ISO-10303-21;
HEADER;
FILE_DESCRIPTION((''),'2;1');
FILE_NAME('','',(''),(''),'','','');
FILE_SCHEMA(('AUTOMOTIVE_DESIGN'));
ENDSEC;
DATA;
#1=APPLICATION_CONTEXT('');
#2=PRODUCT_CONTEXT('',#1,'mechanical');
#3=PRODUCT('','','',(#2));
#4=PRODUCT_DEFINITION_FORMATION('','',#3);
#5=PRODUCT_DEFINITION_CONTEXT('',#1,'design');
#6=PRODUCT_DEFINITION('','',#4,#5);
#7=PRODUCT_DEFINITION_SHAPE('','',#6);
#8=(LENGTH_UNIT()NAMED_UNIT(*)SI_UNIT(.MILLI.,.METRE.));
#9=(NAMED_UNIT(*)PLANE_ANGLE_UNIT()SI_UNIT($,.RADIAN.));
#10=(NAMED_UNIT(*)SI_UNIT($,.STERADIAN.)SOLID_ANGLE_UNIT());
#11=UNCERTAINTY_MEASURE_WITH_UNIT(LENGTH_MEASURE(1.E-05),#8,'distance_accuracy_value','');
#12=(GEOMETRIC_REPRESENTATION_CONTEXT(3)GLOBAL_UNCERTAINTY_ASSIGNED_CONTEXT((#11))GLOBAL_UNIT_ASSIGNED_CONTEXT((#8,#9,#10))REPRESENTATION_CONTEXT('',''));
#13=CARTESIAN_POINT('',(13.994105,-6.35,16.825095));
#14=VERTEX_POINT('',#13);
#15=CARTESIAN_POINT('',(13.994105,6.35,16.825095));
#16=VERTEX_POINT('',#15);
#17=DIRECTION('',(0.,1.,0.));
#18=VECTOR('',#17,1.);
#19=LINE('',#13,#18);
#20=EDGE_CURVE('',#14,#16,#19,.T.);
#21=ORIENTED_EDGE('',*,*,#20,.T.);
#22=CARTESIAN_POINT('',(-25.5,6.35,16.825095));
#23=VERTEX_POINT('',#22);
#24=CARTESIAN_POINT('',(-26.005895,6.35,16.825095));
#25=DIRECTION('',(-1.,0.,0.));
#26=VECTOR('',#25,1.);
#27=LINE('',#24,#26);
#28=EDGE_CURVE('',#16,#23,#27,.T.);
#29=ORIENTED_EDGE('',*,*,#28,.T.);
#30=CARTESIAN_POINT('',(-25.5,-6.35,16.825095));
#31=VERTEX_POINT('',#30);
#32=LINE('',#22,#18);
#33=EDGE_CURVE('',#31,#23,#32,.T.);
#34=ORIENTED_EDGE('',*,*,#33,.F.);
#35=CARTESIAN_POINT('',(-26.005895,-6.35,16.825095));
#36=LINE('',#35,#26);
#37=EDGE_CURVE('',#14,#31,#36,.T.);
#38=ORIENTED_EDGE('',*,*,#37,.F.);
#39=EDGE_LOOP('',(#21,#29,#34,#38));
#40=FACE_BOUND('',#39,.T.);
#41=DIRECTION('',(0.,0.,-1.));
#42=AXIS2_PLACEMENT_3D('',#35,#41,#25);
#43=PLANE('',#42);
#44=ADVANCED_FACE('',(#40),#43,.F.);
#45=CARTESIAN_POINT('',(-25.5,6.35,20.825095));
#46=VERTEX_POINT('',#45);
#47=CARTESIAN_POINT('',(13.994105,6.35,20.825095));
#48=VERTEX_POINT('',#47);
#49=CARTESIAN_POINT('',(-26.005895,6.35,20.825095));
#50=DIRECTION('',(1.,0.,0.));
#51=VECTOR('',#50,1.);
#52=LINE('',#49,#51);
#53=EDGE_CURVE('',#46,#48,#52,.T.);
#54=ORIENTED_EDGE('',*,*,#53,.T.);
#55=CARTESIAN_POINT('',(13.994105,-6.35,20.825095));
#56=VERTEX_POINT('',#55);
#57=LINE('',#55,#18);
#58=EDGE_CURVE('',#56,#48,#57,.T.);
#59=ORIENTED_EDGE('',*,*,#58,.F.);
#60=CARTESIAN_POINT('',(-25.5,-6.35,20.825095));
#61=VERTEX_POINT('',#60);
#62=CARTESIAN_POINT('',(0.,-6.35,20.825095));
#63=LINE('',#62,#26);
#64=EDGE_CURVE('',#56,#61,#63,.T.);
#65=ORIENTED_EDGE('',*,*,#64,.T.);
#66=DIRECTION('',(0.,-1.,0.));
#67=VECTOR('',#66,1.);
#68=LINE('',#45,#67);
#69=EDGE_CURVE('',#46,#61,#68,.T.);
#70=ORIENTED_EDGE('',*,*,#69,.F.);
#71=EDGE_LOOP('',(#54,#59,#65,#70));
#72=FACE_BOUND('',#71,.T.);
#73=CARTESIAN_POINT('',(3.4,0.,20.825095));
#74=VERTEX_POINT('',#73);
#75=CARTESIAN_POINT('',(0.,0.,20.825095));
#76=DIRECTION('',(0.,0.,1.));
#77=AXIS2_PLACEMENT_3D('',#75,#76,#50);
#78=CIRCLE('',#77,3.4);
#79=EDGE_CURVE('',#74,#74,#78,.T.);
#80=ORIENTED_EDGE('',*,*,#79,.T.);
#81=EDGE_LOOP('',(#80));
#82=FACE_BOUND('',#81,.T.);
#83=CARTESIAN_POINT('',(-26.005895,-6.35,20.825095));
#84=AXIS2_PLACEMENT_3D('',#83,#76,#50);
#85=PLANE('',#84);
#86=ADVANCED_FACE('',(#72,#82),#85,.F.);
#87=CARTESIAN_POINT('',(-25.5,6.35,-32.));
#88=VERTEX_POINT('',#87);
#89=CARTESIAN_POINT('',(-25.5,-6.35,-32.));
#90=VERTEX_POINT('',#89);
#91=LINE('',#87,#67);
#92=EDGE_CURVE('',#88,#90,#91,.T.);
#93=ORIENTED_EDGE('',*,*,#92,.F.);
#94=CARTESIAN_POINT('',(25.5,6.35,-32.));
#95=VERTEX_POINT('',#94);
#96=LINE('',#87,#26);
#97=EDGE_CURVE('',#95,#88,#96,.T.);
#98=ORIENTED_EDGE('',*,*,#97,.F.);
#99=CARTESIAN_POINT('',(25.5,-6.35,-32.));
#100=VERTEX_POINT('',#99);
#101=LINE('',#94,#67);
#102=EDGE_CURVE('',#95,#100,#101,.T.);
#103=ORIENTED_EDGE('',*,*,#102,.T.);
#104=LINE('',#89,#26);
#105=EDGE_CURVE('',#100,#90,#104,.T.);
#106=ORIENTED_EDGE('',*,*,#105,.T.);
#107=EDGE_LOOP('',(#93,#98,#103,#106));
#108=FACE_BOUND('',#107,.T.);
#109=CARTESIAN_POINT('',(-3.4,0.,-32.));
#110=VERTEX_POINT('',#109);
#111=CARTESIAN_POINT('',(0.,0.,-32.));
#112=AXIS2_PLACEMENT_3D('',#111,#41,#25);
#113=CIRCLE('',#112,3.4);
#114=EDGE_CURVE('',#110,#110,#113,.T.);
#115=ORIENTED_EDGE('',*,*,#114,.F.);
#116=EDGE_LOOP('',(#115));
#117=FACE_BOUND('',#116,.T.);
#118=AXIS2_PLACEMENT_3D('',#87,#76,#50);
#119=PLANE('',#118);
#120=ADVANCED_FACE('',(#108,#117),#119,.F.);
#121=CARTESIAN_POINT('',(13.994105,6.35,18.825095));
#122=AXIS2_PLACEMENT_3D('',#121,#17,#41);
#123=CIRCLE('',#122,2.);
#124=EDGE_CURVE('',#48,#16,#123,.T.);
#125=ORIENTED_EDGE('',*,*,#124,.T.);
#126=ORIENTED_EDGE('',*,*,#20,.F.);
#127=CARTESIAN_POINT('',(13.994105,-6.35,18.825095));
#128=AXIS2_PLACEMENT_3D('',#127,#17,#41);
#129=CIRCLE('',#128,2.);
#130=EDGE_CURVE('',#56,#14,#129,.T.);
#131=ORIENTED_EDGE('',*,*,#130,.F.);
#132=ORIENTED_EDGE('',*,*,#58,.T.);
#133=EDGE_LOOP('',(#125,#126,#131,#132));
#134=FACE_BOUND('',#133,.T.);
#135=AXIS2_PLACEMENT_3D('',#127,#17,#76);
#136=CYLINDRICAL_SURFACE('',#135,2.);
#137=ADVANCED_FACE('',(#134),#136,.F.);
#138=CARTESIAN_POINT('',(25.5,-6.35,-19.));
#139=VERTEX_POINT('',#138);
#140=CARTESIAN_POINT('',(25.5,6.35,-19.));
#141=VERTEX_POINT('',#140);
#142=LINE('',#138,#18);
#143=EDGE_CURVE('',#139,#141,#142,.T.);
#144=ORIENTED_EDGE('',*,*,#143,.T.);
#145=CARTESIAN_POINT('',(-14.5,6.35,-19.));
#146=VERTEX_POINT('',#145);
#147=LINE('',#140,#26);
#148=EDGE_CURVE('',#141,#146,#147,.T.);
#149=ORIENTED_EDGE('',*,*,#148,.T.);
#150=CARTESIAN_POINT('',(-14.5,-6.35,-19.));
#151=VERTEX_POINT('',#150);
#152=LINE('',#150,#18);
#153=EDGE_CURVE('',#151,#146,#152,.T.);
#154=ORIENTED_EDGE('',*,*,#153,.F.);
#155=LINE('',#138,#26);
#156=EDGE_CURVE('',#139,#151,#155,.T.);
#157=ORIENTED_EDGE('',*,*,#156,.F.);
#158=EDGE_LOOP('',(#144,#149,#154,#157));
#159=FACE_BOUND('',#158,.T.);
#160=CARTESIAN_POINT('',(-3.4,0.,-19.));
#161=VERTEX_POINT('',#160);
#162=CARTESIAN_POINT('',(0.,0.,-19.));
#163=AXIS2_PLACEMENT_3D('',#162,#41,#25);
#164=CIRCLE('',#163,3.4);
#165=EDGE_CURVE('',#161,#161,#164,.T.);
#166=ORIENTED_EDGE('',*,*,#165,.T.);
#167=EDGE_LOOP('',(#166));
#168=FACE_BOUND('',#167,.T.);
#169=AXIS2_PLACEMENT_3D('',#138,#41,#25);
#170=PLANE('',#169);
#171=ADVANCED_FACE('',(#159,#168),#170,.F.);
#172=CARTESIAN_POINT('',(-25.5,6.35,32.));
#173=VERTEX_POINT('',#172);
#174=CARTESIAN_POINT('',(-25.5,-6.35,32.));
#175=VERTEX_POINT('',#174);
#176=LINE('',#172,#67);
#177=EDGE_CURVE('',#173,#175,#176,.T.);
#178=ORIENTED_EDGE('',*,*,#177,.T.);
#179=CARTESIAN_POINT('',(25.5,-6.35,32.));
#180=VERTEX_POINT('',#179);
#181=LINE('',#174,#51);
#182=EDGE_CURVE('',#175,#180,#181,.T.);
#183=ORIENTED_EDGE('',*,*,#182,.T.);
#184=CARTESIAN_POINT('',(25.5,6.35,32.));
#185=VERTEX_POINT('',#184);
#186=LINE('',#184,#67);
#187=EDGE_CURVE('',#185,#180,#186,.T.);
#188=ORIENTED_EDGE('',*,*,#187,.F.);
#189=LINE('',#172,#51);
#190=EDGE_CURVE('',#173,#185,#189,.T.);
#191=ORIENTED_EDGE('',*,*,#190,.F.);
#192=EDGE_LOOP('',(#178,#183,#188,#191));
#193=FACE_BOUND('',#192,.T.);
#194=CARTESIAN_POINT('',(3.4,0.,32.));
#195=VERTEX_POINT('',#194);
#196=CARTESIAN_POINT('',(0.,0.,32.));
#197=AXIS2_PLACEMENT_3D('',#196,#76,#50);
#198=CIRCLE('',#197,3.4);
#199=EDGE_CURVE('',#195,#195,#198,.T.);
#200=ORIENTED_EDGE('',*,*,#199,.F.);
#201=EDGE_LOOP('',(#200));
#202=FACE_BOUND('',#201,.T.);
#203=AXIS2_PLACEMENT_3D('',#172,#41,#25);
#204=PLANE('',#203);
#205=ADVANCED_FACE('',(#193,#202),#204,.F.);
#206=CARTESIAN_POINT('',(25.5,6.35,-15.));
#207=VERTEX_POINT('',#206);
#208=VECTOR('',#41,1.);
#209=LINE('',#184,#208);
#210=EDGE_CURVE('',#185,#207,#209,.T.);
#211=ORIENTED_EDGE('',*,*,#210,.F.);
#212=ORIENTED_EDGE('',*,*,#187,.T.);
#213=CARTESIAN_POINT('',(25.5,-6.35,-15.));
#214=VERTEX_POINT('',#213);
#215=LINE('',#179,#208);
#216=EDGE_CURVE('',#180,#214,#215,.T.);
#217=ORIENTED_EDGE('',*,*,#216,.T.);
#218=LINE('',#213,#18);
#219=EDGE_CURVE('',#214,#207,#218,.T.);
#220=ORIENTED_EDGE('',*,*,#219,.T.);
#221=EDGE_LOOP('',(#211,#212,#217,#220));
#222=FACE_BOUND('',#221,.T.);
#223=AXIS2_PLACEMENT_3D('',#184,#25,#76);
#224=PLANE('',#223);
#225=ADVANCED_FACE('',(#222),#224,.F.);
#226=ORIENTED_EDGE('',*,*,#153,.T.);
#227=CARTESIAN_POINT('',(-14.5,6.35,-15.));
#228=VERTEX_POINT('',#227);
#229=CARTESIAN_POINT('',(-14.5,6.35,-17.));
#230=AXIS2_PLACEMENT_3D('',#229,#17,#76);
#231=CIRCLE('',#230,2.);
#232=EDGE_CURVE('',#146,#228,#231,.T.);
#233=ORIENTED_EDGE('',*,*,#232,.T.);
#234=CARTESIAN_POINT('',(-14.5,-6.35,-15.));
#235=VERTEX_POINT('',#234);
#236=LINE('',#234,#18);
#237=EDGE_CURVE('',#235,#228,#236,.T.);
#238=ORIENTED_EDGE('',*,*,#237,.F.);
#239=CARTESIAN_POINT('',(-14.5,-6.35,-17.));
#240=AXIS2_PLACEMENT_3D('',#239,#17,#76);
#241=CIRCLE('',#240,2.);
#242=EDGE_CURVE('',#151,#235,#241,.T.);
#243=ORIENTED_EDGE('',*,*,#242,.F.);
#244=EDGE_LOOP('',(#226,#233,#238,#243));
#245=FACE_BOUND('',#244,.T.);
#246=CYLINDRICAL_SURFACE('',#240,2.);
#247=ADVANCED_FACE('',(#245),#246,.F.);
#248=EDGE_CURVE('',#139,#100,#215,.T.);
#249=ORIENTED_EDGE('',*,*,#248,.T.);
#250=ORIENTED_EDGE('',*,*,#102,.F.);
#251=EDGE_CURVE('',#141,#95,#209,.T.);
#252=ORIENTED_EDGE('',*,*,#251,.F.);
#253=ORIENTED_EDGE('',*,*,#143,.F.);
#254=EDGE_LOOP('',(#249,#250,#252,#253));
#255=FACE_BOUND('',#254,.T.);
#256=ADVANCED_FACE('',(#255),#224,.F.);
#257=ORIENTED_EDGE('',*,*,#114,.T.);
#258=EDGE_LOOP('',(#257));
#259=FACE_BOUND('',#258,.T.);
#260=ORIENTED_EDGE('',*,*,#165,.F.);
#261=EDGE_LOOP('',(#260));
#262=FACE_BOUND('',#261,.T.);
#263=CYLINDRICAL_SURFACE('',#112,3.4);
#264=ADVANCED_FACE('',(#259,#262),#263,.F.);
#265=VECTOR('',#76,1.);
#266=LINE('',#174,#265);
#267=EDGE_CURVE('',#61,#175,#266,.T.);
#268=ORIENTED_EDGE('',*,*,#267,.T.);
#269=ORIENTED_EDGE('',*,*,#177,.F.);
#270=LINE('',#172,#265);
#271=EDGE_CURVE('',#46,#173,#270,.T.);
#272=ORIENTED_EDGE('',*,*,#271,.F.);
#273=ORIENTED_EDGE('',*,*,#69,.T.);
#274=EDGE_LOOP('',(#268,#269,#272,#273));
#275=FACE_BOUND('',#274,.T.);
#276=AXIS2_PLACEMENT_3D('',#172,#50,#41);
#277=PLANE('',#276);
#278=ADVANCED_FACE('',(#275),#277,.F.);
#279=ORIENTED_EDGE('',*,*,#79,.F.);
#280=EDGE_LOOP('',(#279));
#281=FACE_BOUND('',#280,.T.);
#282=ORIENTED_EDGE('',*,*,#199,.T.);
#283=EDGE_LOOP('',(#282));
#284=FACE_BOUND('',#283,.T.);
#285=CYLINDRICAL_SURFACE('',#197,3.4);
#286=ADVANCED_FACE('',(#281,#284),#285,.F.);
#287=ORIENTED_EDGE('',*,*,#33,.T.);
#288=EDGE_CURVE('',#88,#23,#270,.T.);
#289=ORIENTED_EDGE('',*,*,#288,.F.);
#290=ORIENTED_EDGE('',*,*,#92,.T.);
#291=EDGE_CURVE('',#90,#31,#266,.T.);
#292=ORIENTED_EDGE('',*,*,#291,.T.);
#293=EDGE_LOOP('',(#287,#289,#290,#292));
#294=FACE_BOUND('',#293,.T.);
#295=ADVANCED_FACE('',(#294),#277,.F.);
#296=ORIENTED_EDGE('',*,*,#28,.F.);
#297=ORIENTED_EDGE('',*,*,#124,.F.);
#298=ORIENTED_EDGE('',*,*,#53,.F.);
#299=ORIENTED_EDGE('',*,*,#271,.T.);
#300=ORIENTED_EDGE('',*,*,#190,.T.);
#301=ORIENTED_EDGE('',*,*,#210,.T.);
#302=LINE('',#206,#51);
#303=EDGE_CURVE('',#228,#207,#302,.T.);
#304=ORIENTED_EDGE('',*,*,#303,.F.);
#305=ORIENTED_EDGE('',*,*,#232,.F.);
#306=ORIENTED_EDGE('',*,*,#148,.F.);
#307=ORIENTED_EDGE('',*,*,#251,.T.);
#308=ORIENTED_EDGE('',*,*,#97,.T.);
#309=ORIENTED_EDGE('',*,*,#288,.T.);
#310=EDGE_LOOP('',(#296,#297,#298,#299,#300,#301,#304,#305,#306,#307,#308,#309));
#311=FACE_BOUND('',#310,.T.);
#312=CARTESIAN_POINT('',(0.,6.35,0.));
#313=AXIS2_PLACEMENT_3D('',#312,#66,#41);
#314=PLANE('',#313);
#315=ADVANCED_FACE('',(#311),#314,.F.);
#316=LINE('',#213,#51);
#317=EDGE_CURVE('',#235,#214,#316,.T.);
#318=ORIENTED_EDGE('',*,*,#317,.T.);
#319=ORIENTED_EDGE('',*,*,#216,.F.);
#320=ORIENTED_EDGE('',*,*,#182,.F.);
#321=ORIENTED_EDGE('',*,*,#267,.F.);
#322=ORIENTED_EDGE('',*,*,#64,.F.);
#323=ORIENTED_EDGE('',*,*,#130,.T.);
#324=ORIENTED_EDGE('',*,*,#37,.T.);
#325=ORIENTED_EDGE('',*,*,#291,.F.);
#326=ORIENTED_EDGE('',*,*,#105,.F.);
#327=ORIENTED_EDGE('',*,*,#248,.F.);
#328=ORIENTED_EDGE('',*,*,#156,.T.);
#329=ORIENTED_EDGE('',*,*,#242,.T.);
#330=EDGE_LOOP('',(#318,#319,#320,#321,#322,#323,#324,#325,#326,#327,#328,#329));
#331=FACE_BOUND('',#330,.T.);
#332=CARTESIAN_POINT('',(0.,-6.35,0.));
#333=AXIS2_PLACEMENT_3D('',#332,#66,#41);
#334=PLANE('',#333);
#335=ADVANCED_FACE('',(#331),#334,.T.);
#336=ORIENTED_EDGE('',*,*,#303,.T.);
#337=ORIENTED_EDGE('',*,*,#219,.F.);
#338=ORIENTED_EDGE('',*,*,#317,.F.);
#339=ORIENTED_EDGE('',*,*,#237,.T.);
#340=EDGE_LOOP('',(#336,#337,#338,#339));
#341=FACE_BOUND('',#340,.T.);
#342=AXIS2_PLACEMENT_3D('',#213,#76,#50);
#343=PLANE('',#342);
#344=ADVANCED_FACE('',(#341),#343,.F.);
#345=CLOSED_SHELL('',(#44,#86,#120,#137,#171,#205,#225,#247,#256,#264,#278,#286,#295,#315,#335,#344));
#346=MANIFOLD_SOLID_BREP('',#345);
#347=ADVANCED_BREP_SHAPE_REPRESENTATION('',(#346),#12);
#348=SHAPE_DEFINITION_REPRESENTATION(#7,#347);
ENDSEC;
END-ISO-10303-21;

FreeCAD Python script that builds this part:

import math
import FreeCAD as App
import Part
import Sketcher

V = App.Vector
Q = App.Units.Quantity


def add_polygon(sketch, points):
    """Adds a closed chain of lines whose ends are joined by coincident constraints."""
    first, n = sketch.GeometryCount, len(points)
    for a, b in zip(points, points[1:] + points[:1]):
        sketch.addGeometry(Part.LineSegment(App.Vector(*a, 0), App.Vector(*b, 0)), False)
    for i in range(n):
        sketch.addConstraint(Sketcher.Constraint("Coincident", first + i, 2, first + (i + 1) % n, 1))

doc = App.newDocument("Part")
body = doc.addObject("PartDesign::Body", "Body")

# Sketch on XZ plane
sketch1 = body.newObject("Sketcher::SketchObject", "Sketch")
sketch1.AttachmentSupport = (doc.getObject("XZ_Plane"), [""])
sketch1.MapMode = "FlatFace"
add_polygon(sketch1, [(-26, -32), (-26, 32), (26, 32), (26, -32)])  # lines 0-3
sketch1.addConstraint([
    Sketcher.Constraint("Vertical", 0),
    Sketcher.Constraint("Horizontal", 1),
    Sketcher.Constraint("Vertical", 2),
    Sketcher.Constraint("Horizontal", 3),
    Sketcher.Constraint("Symmetric", 0, 2, 2, 2, -1, 1),
    Sketcher.Constraint("DistanceX", 1, 1, 1, 2, Q("51 mm")),
    Sketcher.Constraint("DistanceY", 0, 1, 0, 2, Q("64 mm")),
])
pad1 = body.newObject("PartDesign::Pad", "Pad")
pad1.Profile = sketch1
pad1.Length = 12.7
pad1.Midplane = True

# Sketch on XZ plane
sketch2 = body.newObject("Sketcher::SketchObject", "Sketch001")
sketch2.AttachmentSupport = (doc.getObject("XZ_Plane"), [""])
sketch2.MapMode = "FlatFace"
sketch2.AttachmentOffset = App.Placement(V(0, 0, -6.35), App.Rotation())
sketch2.addGeometry([
    Part.LineSegment(V(-14.5, -15, 0), V(25.5, -15, 0)),
    Part.ArcOfCircle(Part.Circle(V(25.5, -17, 0), V(0, 0, 1), 2), math.radians(-90), math.radians(90)),
    Part.LineSegment(V(25.5, -19, 0), V(-14.5, -19, 0)),
    Part.ArcOfCircle(Part.Circle(V(-14.5, -17, 0), V(0, 0, 1), 2), math.radians(90), math.radians(270)),
], False)
sketch2.addConstraint([
    Sketcher.Constraint("Tangent", 0, 2, 1, 2),
    Sketcher.Constraint("Tangent", 1, 1, 2, 1),
    Sketcher.Constraint("Tangent", 2, 2, 3, 2),
    Sketcher.Constraint("Tangent", 3, 1, 0, 1),
    Sketcher.Constraint("Horizontal", 0),
    Sketcher.Constraint("Horizontal", 2),
    Sketcher.Constraint("Radius", 1, Q("2 mm")),
    Sketcher.Constraint("DistanceX", 0, 1, 0, 2, Q("40 mm")),
    Sketcher.Constraint("DistanceY", 1, 3, -1, 1, Q("17 mm")),
    Sketcher.Constraint("DistanceX", -1, 1, 1, 3, Q("25.5 mm")),
])
pocket1 = body.newObject("PartDesign::Pocket", "Pocket")
pocket1.Profile = sketch2
pocket1.Type = "ThroughAll"
pocket1.Reversed = True
doc.recompute()

datumline = body.newObject("PartDesign::Line", "DatumLine")
datumline.Placement = App.Placement(V(-0.252948, 0, 0.912548), App.Rotation(V(0, 0, 1), V(0, 1, 0)))
polarpattern = body.newObject("PartDesign::PolarPattern", "PolarPattern")
polarpattern.Originals = [pocket1]
polarpattern.Axis = (datumline, [""])
polarpattern.Angle = 360
polarpattern.Occurrences = 2
body.Tip = polarpattern

# Sketch on XY plane
sketch3 = body.newObject("Sketcher::SketchObject", "Sketch002")
sketch3.AttachmentSupport = (doc.getObject("XY_Plane"), [""])
sketch3.MapMode = "FlatFace"
sketch3.AttachmentOffset = App.Placement(V(0, 0, -32), App.Rotation())
sketch3.addGeometry(Part.Circle(V(0, 0, 0), V(0, 0, 1), 3.4), False)
sketch3.addConstraint([
    Sketcher.Constraint("Coincident", 0, 3, -1, 1),
    Sketcher.Constraint("Diameter", 0, Q("6.8 mm")),
])
doc.recompute()
hole = body.newObject("PartDesign::Hole", "Hole")
hole.Profile = sketch3
hole.ThreadType = "None"
hole.Diameter = 6.8
hole.DepthType = "Dimension"
hole.Depth = 13
hole.DrillPoint = "Flat"
hole.Reversed = True
doc.recompute()

mirrored = body.newObject("PartDesign::Mirrored", "Mirrored")
mirrored.Originals = [hole]
mirrored.MirrorPlane = (doc.getObject("XY_Plane"), [""])
body.Tip = mirrored

doc.recompute()
